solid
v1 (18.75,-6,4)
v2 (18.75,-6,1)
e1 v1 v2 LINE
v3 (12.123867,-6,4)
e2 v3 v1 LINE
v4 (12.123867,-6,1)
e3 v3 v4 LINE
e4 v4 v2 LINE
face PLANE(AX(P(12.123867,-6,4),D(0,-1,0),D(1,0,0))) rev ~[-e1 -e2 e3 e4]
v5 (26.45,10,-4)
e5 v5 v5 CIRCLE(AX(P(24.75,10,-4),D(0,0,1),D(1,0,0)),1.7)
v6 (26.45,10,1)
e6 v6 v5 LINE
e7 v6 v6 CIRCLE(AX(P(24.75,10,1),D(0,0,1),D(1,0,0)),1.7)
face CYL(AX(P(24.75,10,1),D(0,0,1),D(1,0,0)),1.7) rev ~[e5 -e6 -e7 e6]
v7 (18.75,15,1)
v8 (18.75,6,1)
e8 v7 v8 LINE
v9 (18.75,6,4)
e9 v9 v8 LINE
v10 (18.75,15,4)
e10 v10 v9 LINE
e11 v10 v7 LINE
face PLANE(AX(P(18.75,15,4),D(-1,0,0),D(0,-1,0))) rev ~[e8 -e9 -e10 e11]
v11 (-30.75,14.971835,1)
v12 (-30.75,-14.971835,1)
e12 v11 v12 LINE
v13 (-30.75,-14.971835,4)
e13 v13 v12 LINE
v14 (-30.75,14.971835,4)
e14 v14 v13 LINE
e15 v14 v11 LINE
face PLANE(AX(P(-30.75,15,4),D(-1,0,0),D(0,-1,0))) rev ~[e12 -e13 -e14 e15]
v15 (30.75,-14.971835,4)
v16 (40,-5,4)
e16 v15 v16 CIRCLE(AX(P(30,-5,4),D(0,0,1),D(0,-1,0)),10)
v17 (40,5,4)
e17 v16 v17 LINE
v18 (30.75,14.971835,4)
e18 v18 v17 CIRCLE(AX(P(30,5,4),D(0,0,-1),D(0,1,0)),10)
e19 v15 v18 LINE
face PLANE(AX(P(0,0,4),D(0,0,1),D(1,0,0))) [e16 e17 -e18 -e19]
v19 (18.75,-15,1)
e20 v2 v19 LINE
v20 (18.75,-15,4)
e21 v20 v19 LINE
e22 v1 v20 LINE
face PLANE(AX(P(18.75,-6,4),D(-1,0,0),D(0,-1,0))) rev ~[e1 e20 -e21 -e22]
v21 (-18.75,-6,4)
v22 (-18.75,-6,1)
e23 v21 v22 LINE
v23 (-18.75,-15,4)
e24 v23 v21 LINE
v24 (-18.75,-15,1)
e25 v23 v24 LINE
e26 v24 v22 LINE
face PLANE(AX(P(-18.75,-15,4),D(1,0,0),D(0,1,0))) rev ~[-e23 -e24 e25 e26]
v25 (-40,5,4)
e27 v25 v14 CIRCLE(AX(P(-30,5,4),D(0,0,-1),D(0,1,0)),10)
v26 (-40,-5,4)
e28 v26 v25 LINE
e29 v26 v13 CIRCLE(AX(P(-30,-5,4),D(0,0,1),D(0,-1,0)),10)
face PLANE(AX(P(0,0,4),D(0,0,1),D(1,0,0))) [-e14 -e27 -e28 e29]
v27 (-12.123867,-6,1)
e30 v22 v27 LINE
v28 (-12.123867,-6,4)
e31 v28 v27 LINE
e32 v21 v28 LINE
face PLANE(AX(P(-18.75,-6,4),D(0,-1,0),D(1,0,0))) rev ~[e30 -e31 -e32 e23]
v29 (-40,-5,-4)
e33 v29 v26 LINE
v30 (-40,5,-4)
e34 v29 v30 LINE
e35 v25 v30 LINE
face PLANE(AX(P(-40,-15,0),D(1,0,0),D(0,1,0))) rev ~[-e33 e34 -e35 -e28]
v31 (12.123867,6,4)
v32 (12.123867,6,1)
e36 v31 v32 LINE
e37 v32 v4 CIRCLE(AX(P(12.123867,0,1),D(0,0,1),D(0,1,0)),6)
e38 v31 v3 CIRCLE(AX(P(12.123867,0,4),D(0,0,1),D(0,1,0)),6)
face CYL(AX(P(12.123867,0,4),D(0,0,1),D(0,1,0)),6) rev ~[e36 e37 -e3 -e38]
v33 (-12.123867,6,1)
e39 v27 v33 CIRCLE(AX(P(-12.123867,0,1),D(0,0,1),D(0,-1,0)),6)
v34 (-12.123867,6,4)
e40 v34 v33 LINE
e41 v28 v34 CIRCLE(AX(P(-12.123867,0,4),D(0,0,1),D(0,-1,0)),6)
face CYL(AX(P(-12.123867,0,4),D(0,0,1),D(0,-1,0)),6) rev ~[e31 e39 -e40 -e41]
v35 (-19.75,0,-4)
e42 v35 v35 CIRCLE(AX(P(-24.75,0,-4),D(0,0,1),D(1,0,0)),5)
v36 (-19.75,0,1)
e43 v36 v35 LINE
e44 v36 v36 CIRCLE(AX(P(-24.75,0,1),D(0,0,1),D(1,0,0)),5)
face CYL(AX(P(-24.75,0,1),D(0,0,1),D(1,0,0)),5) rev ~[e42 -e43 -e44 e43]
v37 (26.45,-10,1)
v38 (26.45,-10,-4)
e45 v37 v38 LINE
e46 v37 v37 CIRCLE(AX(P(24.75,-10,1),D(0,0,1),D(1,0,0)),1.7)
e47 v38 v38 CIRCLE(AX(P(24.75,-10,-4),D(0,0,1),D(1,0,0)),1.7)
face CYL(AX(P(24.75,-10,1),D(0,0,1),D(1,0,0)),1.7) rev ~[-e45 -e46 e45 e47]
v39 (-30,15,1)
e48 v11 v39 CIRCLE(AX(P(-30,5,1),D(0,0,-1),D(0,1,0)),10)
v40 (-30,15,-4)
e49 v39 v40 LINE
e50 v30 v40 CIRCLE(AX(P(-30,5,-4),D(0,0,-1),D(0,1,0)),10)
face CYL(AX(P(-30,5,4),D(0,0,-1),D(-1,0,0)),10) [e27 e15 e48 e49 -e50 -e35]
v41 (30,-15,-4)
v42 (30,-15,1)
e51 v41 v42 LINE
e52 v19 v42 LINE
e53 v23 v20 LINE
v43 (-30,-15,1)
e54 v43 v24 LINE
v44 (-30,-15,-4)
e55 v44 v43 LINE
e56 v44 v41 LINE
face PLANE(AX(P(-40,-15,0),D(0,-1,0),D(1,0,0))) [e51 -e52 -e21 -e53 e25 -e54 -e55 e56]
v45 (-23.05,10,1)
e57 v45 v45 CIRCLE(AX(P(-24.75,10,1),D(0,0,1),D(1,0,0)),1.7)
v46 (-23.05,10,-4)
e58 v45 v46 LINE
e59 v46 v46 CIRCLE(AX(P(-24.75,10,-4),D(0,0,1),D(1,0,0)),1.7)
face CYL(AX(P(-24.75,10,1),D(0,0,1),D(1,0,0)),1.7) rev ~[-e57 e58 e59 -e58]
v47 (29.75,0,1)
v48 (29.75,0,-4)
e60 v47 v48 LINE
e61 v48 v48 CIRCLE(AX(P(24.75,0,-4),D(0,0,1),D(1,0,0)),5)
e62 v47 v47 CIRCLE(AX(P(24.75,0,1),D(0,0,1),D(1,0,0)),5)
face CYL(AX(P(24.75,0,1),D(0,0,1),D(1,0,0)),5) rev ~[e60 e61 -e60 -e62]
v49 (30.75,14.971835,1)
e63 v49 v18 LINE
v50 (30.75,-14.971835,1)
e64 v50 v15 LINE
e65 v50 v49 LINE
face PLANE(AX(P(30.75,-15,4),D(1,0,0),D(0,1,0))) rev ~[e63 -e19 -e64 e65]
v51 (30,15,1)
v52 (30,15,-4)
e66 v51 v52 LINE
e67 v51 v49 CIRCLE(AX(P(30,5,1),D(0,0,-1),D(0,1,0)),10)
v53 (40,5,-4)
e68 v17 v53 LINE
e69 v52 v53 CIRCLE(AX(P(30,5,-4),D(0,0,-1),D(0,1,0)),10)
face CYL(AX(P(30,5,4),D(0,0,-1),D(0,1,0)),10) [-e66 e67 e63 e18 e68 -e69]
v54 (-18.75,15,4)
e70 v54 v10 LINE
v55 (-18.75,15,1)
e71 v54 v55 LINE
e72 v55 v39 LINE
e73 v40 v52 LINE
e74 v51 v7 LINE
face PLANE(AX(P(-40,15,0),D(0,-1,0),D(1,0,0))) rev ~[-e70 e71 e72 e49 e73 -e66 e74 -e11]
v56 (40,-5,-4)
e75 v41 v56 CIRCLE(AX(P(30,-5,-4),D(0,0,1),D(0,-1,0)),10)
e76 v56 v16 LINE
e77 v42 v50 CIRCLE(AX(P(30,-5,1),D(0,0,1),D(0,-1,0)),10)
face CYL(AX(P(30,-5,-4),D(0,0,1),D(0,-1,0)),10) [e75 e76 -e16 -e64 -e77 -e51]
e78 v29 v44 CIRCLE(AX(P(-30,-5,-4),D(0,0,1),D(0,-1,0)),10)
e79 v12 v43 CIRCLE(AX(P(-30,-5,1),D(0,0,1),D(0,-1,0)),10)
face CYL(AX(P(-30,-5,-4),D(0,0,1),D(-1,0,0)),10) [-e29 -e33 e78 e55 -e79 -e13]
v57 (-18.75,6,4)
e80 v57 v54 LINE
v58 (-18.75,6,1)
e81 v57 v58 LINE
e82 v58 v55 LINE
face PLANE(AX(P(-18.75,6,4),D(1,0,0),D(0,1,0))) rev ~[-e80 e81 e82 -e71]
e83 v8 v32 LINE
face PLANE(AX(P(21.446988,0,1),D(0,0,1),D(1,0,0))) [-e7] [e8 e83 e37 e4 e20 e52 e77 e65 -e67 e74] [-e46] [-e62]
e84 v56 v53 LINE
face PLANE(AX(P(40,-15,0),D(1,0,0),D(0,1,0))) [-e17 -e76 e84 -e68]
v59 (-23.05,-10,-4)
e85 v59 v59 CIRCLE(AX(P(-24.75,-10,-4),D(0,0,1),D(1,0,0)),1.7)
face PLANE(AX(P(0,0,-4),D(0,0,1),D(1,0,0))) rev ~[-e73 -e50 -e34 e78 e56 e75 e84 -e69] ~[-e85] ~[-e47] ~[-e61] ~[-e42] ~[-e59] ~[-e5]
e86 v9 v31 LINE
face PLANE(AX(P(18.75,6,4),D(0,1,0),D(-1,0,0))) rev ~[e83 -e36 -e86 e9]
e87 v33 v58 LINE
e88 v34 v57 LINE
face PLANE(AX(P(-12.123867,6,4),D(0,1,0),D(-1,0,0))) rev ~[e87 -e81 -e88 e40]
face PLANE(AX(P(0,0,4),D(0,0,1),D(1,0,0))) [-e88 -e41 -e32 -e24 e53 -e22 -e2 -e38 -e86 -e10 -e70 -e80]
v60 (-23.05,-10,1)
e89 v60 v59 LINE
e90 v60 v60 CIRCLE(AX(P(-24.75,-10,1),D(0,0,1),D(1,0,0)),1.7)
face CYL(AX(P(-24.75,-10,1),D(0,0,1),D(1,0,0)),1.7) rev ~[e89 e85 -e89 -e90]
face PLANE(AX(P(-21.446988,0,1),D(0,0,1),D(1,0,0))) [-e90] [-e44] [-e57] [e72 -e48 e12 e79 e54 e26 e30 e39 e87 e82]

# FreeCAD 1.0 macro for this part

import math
import FreeCAD as App
import Part
import Sketcher
from FreeCAD import Vector
Q = App.Units.Quantity


def edges_at(feature, points):
    """Names of the edges that pass closest to the given points."""
    edges = feature.Shape.Edges
    near = lambda p: min(range(len(edges)), key=lambda i: edges[i].distToShape(Part.Vertex(*p))[0])
    return sorted({f"Edge{near(p) + 1}" for p in points})

doc = App.newDocument("Part")
body = doc.addObject("PartDesign::Body", "Body")

# Sketch on XY plane
sketch1 = body.newObject("Sketcher::SketchObject", "Sketch")
sketch1.AttachmentSupport = (doc.getObject("XY_Plane"), [""])
sketch1.MapMode = "FlatFace"
sketch1.addGeometry([
    Part.LineSegment(Vector(-40, 15, 0), Vector(-40, -15, 0)),
    Part.LineSegment(Vector(-40, -15, 0), Vector(40, -15, 0)),
    Part.LineSegment(Vector(40, -15, 0), Vector(40, 15, 0)),
    Part.LineSegment(Vector(40, 15, 0), Vector(-40, 15, 0)),
], False)
sketch1.addConstraint([
    Sketcher.Constraint("Coincident", 0, 2, 1, 1),
    Sketcher.Constraint("Coincident", 1, 2, 2, 1),
    Sketcher.Constraint("Coincident", 2, 2, 3, 1),
    Sketcher.Constraint("Coincident", 3, 2, 0, 1),
    Sketcher.Constraint("Vertical", 0),
    Sketcher.Constraint("Horizontal", 1),
    Sketcher.Constraint("Vertical", 2),
    Sketcher.Constraint("Horizontal", 3),
    Sketcher.Constraint("Symmetric", 0, 2, 2, 2, -1, 1),
    Sketcher.Constraint("DistanceX", 1, 1, 1, 2, Q("80 mm")),
    Sketcher.Constraint("DistanceY", 0, 2, 0, 1, Q("30 mm")),
])
pad1 = body.newObject("PartDesign::Pad", "Pad")
pad1.Profile = sketch1
pad1.Length = 8
pad1.Midplane = True

# Sketch on XY plane
sketch2 = body.newObject("Sketcher::SketchObject", "Sketch001")
sketch2.AttachmentSupport = (doc.getObject("XY_Plane"), [""])
sketch2.MapMode = "FlatFace"
sketch2.AttachmentOffset = App.Placement(Vector(0, 0, 4), App.Rotation())
sketch2.addGeometry([
    Part.LineSegment(Vector(-18.75, 15, 0), Vector(-30.75, 15, 0)),  # 0
    Part.LineSegment(Vector(-30.75, 15, 0), Vector(-30.75, -15, 0)),  # 1
    Part.LineSegment(Vector(-30.75, -15, 0), Vector(-18.75, -15, 0)),  # 2
    Part.LineSegment(Vector(-18.75, -15, 0), Vector(-18.75, -6, 0)),  # 3
    Part.LineSegment(Vector(-18.75, -6, 0), Vector(-12.123867, -6, 0)),  # 4
    Part.ArcOfCircle(Part.Circle(Vector(-12.123867, 0, 0), Vector(0, 0, 1), 6), math.radians(-90), math.radians(90)),  # 5
    Part.LineSegment(Vector(-12.123867, 6, 0), Vector(-18.75, 6, 0)),  # 6
    Part.LineSegment(Vector(-18.75, 6, 0), Vector(-18.75, 15, 0)),  # 7
    Part.LineSegment(Vector(30.75, -15, 0), Vector(30.75, 15, 0)),  # 8
    Part.LineSegment(Vector(30.75, 15, 0), Vector(18.75, 15, 0)),  # 9
    Part.LineSegment(Vector(18.75, 15, 0), Vector(18.75, 6, 0)),  # 10
    Part.LineSegment(Vector(18.75, 6, 0), Vector(12.123867, 6, 0)),  # 11
    Part.ArcOfCircle(Part.Circle(Vector(12.123867, 0, 0), Vector(0, 0, 1), 6), math.radians(90), math.radians(270)),  # 12
    Part.LineSegment(Vector(12.123867, -6, 0), Vector(18.75, -6, 0)),  # 13
    Part.LineSegment(Vector(18.75, -6, 0), Vector(18.75, -15, 0)),  # 14
    Part.LineSegment(Vector(18.75, -15, 0), Vector(30.75, -15, 0)),  # 15
], False)
sketch2.addConstraint([
    Sketcher.Constraint("Coincident", 0, 2, 1, 1),
    Sketcher.Constraint("Coincident", 1, 2, 2, 1),
    Sketcher.Constraint("Coincident", 2, 2, 3, 1),
    Sketcher.Constraint("Coincident", 3, 2, 4, 1),
    Sketcher.Constraint("Tangent", 4, 2, 5, 1),
    Sketcher.Constraint("Tangent", 5, 2, 6, 1),
    Sketcher.Constraint("Coincident", 6, 2, 7, 1),
    Sketcher.Constraint("Coincident", 7, 2, 0, 1),
    Sketcher.Constraint("Coincident", 8, 2, 9, 1),
    Sketcher.Constraint("Coincident", 9, 2, 10, 1),
    Sketcher.Constraint("Coincident", 10, 2, 11, 1),
    Sketcher.Constraint("Tangent", 11, 2, 12, 1),
    Sketcher.Constraint("Tangent", 12, 2, 13, 1),
    Sketcher.Constraint("Coincident", 13, 2, 14, 1),
    Sketcher.Constraint("Coincident", 14, 2, 15, 1),
    Sketcher.Constraint("Coincident", 15, 2, 8, 1),
    Sketcher.Constraint("Horizontal", 0),
    Sketcher.Constraint("Vertical", 1),
    Sketcher.Constraint("Horizontal", 2),
    Sketcher.Constraint("Vertical", 3),
    Sketcher.Constraint("Horizontal", 4),
    Sketcher.Constraint("Horizontal", 6),
    Sketcher.Constraint("Vertical", 7),
    Sketcher.Constraint("Vertical", 8),
    Sketcher.Constraint("Horizontal", 9),
    Sketcher.Constraint("Vertical", 10),
    Sketcher.Constraint("Horizontal", 11),
    Sketcher.Constraint("Horizontal", 13),
    Sketcher.Constraint("Vertical", 14),
    Sketcher.Constraint("Horizontal", 15),
    Sketcher.Constraint("Equal", 5, 12),
    Sketcher.Constraint("Symmetric", 5, 3, 12, 3, -1, 1),
    Sketcher.Constraint("Symmetric", 1, 2, 8, 2, -1, 1),
    Sketcher.Constraint("Symmetric", 7, 2, 14, 2, -1, 1),
    Sketcher.Constraint("Symmetric", 7, 2, 9, 2, -2),
    Sketcher.Constraint("Symmetric", 3, 2, 13, 2, -2),
    Sketcher.Constraint("Radius", 5, Q("6 mm")),
    Sketcher.Constraint("DistanceX", 0, 2, 0, 1, Q("12 mm")),
    Sketcher.Constraint("DistanceY", 1, 2, 1, 1, Q("30 mm")),
    Sketcher.Constraint("DistanceX", 7, 2, 8, 2, Q("49.5 mm")),
    Sketcher.Constraint("DistanceX", 4, 1, 4, 2, Q("6.626133 mm")),
])
pocket1 = body.newObject("PartDesign::Pocket", "Pocket")
pocket1.Profile = sketch2
pocket1.Length = 3

# Sketch on XY plane
sketch3 = body.newObject("Sketcher::SketchObject", "Sketch002")
sketch3.AttachmentSupport = (doc.getObject("XY_Plane"), [""])
sketch3.MapMode = "FlatFace"
sketch3.AttachmentOffset = App.Placement(Vector(0, 0, 1), App.Rotation())
sketch3.addGeometry([
    Part.Circle(Vector(-24.75, 0, 0), Vector(0, 0, 1), 5),  # 0
    Part.Circle(Vector(-24.75, 10, 0), Vector(0, 0, 1), 1.7),  # 1
    Part.Circle(Vector(-24.75, -10, 0), Vector(0, 0, 1), 1.7),  # 2
    Part.Circle(Vector(24.75, 10, 0), Vector(0, 0, 1), 1.7),  # 3
    Part.Circle(Vector(24.75, 0, 0), Vector(0, 0, 1), 5),  # 4
    Part.Circle(Vector(24.75, -10, 0), Vector(0, 0, 1), 1.7),  # 5
], False)
sketch3.addConstraint([
    Sketcher.Constraint("Equal", 1, 2),
    Sketcher.Constraint("Equal", 2, 3),
    Sketcher.Constraint("Equal", 0, 4),
    Sketcher.Constraint("Equal", 3, 5),
    Sketcher.Constraint("Symmetric", 2, 3, 3, 3, -1, 1),
    Sketcher.Constraint("Symmetric", 0, 3, 4, 3, -1, 1),
    Sketcher.Constraint("Symmetric", 1, 3, 5, 3, -1, 1),
    Sketcher.Constraint("Symmetric", 1, 3, 3, 3, -2),
    Sketcher.Constraint("PointOnObject", 0, 3, -1),
    Sketcher.Constraint("Vertical", 0, 3, 1, 3),
    Sketcher.Constraint("Diameter", 0, Q("10 mm")),
    Sketcher.Constraint("Diameter", 1, Q("3.4 mm")),
    Sketcher.Constraint("DistanceY", -1, 1, 1, 3, Q("10 mm")),
    Sketcher.Constraint("DistanceX", 1, 3, 3, 3, Q("49.5 mm")),
])
pocket2 = body.newObject("PartDesign::Pocket", "Pocket001")
pocket2.Profile = sketch3
pocket2.Type = "ThroughAll"
doc.recompute()

fillet = body.newObject("PartDesign::Fillet", "Fillet")
fillet.Base = (pocket2, edges_at(pocket2, [
    (-40, 15, 0),
    (-40, -15, 0),
    (40, 15, 0),
    (40, -15, 0),
]))
fillet.Radius = 10

doc.recompute()
